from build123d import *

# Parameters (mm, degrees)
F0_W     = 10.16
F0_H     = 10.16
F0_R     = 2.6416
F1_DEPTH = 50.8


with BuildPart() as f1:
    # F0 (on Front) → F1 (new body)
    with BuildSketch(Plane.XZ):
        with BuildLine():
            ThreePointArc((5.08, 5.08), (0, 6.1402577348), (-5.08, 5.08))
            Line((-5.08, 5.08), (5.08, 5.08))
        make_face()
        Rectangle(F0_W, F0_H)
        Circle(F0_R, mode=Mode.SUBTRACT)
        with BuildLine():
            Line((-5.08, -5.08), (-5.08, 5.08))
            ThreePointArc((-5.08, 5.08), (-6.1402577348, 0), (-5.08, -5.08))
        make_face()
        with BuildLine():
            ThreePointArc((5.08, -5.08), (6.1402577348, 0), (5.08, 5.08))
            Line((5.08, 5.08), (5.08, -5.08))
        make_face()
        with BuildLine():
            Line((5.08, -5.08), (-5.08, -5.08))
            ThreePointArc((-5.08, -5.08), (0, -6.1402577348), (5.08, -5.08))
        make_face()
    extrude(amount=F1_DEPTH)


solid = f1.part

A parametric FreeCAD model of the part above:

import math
import FreeCAD as App
import Part
import Sketcher

V = App.Vector
Q = App.Units.Quantity

doc = App.newDocument("Part")
body = doc.addObject("PartDesign::Body", "Body")

# Sketch on XZ plane
sketch1 = body.newObject("Sketcher::SketchObject", "Sketch")
sketch1.AttachmentSupport = (doc.getObject("XZ_Plane"), [""])
sketch1.MapMode = "FlatFace"
sketch1.addGeometry([
    Part.ArcOfCircle(Part.Circle(V(0, -6.6, 0), V(0, 0, 1), 12.7), math.radians(66), math.radians(114)),  # 0
    Part.ArcOfCircle(Part.Circle(V(6.6, 0, 0), V(0, 0, 1), 12.7), math.radians(156), math.radians(204)),  # 1
    Part.ArcOfCircle(Part.Circle(V(0, 6.6, 0), V(0, 0, 1), 12.7), math.radians(-114), math.radians(-66)),  # 2
    Part.ArcOfCircle(Part.Circle(V(-6.6, 0, 0), V(0, 0, 1), 12.7), math.radians(-24), math.radians(24)),  # 3
    Part.Circle(V(0, 0, 0), V(0, 0, 1), 2.6),  # 4
], False)
sketch1.addConstraint([
    Sketcher.Constraint("Coincident", 0, 2, 1, 1),
    Sketcher.Constraint("Coincident", 1, 2, 2, 1),
    Sketcher.Constraint("Coincident", 2, 2, 3, 1),
    Sketcher.Constraint("Coincident", 3, 2, 0, 1),
    Sketcher.Constraint("Coincident", 4, 3, -1, 1),
    Sketcher.Constraint("Equal", 0, 1),
    Sketcher.Constraint("Equal", 1, 2),
    Sketcher.Constraint("Equal", 2, 3),
    Sketcher.Constraint("Symmetric", 0, 3, 2, 3, -1, 1),
    Sketcher.Constraint("Symmetric", 1, 3, 3, 3, -1, 1),
    Sketcher.Constraint("Symmetric", 1, 2, 2, 2, -2),
    Sketcher.Constraint("Radius", 0, Q("0.5 in")),
    Sketcher.Constraint("Diameter", 4, Q("0.208 in")),
    Sketcher.Constraint("DistanceX", 0, 2, -1, 1, Q("0.2 in")),
    Sketcher.Constraint("DistanceY", -1, 1, 0, 2, Q("0.2 in")),
])
pad1 = body.newObject("PartDesign::Pad", "Pad")
pad1.Profile = sketch1
pad1.Length = Q("2 in")

doc.recompute()
